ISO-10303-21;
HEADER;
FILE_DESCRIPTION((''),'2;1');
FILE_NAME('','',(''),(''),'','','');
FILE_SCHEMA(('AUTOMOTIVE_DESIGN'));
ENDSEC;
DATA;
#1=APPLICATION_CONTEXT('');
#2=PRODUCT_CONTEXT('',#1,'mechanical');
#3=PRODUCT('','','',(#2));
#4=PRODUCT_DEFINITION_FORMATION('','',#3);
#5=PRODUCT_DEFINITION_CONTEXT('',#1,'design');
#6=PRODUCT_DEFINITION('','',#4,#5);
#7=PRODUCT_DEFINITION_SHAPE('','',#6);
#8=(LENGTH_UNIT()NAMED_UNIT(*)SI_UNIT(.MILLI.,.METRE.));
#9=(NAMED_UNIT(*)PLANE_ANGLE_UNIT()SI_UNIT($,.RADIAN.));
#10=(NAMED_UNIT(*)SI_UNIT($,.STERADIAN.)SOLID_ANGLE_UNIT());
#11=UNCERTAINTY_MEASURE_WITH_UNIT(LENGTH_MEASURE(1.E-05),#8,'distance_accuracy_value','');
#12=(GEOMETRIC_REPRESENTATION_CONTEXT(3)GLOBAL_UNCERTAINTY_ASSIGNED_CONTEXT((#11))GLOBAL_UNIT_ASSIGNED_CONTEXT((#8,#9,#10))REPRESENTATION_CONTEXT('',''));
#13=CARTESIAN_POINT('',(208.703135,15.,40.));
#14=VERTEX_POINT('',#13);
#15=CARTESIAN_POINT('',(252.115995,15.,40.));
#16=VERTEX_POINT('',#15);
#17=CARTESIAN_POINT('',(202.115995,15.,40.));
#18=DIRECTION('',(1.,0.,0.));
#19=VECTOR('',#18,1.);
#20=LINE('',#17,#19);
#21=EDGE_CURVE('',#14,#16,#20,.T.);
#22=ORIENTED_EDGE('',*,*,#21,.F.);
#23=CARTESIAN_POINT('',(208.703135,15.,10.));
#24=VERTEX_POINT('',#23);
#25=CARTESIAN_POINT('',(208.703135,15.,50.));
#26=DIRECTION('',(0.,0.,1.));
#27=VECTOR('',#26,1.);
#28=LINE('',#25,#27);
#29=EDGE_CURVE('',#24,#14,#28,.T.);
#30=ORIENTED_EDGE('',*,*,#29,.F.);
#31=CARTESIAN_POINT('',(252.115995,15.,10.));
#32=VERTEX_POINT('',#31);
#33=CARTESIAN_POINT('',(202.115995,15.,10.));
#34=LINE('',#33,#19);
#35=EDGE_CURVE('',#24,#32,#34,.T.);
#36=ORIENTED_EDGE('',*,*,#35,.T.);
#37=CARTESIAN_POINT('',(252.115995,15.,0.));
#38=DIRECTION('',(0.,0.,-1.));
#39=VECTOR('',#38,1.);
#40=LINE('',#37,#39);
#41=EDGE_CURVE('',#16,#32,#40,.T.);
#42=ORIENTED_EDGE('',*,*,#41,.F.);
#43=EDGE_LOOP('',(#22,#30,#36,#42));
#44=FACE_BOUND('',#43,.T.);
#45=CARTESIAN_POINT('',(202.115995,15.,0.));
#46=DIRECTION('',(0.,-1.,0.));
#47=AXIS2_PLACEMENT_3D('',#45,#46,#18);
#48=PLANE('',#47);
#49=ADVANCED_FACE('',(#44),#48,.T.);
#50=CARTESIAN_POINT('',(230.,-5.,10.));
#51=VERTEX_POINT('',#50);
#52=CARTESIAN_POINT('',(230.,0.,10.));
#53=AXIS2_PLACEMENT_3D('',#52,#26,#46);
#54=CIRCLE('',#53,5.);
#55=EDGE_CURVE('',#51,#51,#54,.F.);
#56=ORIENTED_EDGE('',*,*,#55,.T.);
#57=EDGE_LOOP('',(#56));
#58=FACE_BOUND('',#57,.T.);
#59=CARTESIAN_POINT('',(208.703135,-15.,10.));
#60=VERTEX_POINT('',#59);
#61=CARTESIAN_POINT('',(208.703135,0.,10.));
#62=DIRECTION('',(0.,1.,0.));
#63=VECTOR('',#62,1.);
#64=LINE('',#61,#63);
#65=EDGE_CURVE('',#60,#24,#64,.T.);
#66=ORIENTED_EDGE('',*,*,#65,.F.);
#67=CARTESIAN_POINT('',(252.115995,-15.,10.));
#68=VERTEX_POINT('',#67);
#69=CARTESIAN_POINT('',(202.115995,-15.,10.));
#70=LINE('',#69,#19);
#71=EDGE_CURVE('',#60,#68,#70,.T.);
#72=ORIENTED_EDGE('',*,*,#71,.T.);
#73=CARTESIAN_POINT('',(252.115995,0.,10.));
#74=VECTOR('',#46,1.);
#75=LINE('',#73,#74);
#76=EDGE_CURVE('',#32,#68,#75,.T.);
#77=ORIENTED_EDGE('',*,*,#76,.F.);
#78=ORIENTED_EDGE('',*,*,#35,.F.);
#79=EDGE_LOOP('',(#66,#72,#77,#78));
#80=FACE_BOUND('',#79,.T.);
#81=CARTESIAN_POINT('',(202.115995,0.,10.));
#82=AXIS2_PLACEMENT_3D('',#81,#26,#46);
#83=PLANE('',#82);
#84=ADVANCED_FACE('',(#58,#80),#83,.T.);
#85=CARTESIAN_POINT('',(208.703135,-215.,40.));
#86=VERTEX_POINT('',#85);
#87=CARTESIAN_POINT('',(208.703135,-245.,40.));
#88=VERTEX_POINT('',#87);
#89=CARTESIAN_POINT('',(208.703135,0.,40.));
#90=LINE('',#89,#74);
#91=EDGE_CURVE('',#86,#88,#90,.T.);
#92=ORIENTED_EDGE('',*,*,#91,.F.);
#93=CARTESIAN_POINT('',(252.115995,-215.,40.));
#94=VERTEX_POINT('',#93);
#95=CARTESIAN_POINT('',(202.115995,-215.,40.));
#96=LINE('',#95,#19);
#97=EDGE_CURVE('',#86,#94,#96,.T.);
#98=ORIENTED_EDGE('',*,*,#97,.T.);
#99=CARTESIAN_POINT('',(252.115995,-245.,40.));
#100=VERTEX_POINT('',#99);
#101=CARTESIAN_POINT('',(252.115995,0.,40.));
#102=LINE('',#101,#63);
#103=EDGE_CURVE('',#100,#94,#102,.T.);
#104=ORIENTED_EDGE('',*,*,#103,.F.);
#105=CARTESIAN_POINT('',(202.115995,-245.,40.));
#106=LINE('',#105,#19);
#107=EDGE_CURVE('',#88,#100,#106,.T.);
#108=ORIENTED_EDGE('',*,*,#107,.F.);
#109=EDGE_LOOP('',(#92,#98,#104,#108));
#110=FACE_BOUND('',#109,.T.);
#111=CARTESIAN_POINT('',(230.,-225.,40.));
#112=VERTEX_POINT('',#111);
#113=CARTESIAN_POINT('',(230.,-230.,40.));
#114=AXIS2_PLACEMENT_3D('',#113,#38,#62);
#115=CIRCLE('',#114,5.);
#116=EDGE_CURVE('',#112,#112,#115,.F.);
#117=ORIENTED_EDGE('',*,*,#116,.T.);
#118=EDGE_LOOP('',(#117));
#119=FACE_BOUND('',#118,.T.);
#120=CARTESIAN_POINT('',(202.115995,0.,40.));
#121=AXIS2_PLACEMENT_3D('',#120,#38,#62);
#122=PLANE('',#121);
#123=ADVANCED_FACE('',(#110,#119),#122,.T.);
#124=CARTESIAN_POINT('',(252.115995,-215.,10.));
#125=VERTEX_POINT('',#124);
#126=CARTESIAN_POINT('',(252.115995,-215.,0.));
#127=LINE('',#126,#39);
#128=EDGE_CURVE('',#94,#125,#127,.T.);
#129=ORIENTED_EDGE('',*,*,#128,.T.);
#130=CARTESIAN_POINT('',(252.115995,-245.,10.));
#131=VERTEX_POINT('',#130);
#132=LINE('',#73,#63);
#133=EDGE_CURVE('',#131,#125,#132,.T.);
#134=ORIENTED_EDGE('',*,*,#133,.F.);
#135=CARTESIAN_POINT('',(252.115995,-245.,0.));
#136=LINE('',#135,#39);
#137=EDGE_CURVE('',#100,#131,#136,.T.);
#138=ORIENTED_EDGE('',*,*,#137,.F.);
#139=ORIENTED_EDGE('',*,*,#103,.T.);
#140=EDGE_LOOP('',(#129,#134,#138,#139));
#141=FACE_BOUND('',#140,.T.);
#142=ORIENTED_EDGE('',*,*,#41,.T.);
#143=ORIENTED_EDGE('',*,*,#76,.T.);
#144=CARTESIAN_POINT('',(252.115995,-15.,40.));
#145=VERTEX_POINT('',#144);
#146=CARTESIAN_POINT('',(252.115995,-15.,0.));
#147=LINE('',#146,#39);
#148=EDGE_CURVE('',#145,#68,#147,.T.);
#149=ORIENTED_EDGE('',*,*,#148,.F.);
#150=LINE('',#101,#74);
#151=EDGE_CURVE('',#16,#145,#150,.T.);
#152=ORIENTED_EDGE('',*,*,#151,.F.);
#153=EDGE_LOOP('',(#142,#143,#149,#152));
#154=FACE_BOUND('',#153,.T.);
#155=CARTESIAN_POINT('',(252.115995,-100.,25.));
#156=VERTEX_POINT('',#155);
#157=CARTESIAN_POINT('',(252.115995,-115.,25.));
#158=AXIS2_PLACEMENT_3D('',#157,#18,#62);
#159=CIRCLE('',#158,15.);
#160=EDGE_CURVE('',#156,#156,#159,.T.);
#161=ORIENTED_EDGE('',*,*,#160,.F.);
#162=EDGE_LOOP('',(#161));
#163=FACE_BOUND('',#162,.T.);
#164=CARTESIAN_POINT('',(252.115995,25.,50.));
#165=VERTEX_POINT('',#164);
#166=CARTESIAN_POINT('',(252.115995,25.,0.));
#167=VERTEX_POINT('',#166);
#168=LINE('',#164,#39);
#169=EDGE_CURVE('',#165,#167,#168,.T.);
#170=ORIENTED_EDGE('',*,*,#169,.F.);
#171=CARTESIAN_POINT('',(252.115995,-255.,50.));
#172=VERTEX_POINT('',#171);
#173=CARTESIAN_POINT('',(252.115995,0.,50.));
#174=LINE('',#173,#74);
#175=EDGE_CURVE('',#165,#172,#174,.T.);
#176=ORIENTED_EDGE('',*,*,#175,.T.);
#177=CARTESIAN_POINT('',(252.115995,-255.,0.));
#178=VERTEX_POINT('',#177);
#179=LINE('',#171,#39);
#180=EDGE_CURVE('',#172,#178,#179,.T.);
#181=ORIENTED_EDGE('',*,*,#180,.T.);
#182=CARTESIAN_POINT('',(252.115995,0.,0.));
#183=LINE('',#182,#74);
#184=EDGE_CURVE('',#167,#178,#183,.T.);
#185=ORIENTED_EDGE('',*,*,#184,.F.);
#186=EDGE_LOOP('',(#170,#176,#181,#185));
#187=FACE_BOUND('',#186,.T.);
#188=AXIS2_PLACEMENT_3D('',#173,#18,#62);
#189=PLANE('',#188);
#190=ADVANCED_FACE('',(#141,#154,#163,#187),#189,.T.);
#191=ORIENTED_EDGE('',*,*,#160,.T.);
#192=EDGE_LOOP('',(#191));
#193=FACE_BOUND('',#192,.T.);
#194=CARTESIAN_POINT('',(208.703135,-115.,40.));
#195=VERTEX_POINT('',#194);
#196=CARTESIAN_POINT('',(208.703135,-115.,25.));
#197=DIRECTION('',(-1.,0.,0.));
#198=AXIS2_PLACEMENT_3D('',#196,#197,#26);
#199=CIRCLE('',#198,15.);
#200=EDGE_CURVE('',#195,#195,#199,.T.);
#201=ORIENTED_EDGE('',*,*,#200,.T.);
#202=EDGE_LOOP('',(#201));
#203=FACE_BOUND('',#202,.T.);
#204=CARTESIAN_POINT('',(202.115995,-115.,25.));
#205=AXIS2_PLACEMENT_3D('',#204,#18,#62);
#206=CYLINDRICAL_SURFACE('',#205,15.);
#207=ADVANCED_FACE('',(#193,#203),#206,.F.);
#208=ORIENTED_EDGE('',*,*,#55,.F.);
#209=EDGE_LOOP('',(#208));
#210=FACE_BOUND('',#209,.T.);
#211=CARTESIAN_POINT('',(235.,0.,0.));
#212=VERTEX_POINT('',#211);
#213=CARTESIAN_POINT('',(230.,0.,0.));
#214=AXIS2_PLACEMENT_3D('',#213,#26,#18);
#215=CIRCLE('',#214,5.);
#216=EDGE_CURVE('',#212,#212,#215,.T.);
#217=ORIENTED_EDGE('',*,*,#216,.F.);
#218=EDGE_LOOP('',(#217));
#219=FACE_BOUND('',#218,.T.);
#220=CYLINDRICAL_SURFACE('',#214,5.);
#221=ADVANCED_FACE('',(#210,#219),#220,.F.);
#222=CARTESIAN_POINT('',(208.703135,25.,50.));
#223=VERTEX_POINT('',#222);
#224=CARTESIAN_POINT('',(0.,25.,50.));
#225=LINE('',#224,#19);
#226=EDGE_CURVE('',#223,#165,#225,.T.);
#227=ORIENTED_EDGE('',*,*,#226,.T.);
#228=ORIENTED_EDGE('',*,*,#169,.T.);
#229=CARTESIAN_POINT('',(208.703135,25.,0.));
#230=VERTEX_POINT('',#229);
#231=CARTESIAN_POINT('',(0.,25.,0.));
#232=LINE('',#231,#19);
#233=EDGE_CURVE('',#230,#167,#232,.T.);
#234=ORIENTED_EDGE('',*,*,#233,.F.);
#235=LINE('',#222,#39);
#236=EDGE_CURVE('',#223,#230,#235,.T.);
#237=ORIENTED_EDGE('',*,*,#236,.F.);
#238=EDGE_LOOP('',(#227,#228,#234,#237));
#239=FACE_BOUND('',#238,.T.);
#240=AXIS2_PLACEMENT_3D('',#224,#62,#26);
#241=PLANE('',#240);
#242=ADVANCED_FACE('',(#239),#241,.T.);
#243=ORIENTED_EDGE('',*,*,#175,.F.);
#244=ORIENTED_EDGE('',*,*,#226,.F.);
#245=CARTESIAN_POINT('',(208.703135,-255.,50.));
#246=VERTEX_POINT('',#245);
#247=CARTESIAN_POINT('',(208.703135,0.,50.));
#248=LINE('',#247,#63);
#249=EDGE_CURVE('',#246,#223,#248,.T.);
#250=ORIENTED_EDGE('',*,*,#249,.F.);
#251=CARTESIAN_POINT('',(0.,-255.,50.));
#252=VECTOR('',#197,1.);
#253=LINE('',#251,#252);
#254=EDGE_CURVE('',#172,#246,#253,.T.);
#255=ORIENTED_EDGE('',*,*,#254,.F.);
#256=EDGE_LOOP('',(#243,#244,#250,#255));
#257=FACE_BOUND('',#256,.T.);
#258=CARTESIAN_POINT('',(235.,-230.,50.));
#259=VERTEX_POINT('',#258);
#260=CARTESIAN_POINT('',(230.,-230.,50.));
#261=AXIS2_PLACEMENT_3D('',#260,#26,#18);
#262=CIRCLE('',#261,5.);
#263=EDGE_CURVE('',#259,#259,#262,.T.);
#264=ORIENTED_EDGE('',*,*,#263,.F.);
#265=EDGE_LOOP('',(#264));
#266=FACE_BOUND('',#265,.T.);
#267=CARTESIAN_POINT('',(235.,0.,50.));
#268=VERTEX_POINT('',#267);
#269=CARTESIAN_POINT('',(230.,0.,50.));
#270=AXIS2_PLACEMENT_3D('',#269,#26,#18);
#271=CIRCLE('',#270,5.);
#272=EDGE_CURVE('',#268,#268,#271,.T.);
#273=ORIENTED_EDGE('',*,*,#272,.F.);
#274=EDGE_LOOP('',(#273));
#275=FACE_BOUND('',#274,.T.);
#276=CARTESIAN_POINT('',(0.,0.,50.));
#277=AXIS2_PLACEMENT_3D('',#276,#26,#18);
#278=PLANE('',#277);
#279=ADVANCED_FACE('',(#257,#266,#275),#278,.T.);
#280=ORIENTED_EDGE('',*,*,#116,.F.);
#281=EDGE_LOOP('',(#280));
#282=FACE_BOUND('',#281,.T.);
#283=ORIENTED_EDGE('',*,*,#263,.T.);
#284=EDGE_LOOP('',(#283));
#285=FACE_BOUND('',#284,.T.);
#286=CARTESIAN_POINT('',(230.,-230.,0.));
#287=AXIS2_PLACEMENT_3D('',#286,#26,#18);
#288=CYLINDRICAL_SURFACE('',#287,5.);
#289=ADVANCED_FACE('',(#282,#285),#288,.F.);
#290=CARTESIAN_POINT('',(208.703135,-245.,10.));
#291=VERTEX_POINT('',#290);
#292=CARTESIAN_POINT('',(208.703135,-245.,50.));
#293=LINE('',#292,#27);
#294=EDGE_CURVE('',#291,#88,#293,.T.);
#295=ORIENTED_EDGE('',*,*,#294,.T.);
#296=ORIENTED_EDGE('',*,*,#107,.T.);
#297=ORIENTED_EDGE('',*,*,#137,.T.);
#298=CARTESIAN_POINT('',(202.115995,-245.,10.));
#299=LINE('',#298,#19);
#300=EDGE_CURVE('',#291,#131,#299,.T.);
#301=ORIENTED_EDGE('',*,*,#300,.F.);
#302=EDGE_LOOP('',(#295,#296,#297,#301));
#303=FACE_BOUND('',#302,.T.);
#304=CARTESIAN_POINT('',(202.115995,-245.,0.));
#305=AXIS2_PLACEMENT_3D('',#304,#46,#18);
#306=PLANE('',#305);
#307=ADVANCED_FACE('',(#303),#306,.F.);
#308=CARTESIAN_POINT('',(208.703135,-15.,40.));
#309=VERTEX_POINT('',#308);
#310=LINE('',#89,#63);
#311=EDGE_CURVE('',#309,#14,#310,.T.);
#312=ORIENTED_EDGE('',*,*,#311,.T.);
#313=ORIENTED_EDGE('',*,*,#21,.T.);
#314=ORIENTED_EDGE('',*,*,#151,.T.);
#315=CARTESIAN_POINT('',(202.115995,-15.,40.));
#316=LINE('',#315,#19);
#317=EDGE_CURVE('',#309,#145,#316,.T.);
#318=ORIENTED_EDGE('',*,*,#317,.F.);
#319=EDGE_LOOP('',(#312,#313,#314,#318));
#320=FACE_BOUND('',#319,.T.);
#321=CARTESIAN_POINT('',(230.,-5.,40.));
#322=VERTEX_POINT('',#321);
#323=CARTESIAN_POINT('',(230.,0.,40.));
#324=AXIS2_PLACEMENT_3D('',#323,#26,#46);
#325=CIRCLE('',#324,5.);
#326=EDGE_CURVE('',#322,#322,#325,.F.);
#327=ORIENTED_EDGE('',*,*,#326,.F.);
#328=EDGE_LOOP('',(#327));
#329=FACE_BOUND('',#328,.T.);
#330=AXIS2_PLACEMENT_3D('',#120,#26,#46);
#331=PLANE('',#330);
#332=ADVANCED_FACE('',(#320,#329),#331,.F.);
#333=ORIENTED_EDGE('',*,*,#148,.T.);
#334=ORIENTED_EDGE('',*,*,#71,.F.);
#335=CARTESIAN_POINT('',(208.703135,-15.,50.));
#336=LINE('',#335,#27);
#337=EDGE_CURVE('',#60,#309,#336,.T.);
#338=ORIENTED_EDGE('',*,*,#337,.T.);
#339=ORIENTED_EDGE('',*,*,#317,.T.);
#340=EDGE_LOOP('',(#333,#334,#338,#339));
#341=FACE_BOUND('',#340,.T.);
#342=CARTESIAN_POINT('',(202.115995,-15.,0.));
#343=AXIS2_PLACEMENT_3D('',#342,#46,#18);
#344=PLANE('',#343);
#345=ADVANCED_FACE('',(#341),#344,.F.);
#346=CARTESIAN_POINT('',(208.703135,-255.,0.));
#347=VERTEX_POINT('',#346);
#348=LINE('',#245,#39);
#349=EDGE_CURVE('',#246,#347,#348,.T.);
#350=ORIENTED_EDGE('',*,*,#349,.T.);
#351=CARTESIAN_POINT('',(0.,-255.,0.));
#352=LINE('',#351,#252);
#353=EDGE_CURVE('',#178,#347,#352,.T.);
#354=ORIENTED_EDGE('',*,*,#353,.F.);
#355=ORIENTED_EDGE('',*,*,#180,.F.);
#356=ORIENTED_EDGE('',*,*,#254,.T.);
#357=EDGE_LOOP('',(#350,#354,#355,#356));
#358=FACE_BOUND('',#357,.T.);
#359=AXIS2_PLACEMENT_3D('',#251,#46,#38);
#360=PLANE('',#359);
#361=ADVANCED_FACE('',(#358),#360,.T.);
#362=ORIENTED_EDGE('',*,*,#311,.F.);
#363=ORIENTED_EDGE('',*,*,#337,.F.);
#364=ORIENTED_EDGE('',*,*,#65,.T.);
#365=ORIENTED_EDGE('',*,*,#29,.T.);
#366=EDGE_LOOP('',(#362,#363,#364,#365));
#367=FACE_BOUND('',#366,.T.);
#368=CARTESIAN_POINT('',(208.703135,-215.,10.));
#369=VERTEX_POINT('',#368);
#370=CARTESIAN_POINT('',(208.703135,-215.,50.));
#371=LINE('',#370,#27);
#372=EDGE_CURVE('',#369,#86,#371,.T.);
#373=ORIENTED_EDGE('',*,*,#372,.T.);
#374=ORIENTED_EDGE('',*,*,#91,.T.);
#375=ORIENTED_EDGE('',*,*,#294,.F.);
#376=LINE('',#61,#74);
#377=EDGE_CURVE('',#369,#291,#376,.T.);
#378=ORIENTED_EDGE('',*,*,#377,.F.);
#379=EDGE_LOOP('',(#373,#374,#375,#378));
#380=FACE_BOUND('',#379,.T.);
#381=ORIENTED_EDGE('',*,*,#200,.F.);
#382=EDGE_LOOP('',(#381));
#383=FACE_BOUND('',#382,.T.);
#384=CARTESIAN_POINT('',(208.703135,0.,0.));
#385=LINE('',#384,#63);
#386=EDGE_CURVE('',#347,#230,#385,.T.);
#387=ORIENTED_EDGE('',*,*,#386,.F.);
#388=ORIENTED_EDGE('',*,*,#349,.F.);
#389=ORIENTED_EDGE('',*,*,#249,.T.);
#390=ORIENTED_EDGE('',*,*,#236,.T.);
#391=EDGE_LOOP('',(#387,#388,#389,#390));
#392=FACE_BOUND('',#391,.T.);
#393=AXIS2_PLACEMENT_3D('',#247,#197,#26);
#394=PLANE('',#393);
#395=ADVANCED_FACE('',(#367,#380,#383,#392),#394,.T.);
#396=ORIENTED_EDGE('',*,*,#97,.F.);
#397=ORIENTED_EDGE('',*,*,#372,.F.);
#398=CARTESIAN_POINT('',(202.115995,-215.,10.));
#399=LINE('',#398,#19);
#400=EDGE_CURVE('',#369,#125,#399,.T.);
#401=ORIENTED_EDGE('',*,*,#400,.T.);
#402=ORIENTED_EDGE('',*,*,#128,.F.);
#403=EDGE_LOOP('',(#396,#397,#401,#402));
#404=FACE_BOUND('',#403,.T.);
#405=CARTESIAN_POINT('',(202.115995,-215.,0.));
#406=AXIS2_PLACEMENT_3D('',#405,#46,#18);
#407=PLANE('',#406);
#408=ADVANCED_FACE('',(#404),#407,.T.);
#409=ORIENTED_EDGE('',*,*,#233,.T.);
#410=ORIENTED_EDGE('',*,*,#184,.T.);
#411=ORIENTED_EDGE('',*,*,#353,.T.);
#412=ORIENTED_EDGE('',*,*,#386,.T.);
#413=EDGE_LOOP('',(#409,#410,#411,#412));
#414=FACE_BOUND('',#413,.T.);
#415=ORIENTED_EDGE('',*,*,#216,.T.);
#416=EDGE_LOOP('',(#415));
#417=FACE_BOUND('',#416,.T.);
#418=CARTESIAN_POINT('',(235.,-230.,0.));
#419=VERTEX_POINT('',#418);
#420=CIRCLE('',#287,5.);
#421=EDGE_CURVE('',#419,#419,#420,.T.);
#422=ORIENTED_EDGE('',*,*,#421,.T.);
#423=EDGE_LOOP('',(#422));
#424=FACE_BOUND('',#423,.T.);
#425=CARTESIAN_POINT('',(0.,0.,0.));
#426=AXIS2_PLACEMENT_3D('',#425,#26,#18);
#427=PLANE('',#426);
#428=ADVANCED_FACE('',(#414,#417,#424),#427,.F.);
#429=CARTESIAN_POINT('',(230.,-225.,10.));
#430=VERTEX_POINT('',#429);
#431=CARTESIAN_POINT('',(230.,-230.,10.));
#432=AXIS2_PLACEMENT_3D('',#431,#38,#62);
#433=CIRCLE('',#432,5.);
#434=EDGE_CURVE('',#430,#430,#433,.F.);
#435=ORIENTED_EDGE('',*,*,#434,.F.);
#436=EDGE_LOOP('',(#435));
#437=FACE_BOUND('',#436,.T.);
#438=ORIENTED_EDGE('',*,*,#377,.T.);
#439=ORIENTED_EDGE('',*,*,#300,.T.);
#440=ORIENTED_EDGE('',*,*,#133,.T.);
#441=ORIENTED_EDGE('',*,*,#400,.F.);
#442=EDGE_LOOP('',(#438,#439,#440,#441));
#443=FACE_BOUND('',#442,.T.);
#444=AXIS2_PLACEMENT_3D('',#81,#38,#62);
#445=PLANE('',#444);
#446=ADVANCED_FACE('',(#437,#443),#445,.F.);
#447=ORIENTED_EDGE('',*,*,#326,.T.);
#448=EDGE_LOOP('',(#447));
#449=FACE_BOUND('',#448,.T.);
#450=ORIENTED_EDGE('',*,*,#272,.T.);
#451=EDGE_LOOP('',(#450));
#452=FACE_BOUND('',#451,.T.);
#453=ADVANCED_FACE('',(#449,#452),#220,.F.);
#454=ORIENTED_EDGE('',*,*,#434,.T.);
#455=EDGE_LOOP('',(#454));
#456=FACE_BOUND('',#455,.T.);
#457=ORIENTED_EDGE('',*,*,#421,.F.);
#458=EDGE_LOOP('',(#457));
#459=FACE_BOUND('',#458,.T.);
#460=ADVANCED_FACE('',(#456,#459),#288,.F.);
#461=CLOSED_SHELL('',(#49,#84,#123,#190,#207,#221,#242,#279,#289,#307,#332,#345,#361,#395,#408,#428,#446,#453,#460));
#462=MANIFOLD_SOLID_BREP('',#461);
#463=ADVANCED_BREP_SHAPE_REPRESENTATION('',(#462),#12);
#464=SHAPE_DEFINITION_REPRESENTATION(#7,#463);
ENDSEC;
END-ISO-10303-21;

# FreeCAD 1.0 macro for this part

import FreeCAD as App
import Part
import Sketcher
Q = App.Units.Quantity


def add_polygon(sketch, points):
    """Adds a closed chain of lines whose ends are joined by coincident constraints."""
    first, n = sketch.GeometryCount, len(points)
    for a, b in zip(points, points[1:] + points[:1]):
        sketch.addGeometry(Part.LineSegment(App.Vector(*a, 0), App.Vector(*b, 0)), False)
    for i in range(n):
        sketch.addConstraint(Sketcher.Constraint("Coincident", first + i, 2, first + (i + 1) % n, 1))

doc = App.newDocument("Part")
body = doc.addObject("PartDesign::Body", "Body")

sketch1 = body.newObject("Sketcher::SketchObject", "Sketch")
sketch1.AttachmentSupport = (doc.getObject("XY_Plane"), [""])
sketch1.MapMode = "FlatFace"
add_polygon(sketch1, [(209, 25), (209, -255), (252, -255), (252, 25)])
sketch1.addConstraint([
    Sketcher.Constraint("Vertical", 0),
    Sketcher.Constraint("Horizontal", 1),
    Sketcher.Constraint("Vertical", 2),
    Sketcher.Constraint("Horizontal", 3),
    Sketcher.Constraint("DistanceY", 0, 2, 0, 1, Q("280 mm")),
    Sketcher.Constraint("DistanceY", 0, 2, -1, 1, Q("255 mm")),
    Sketcher.Constraint("DistanceX", 1, 1, 1, 2, Q("43.41286 mm")),
    Sketcher.Constraint("DistanceX", -1, 1, 0, 2, Q("208.703135 mm")),
])
pad1 = body.newObject("PartDesign::Pad", "Pad")
pad1.Profile = sketch1
pad1.Length = 50

sketch2 = body.newObject("Sketcher::SketchObject", "Sketch001")
sketch2.AttachmentSupport = (doc.getObject("XY_Plane"), [""])
sketch2.MapMode = "FlatFace"
sketch2.AttachmentOffset = App.Placement(App.Vector(0, 0, 50), App.Rotation())
sketch2.addGeometry([
    Part.Circle(App.Vector(230, 0, 0), App.Vector(0, 0, 1), 5),
    Part.Circle(App.Vector(230, -230, 0), App.Vector(0, 0, 1), 5),
], False)
sketch2.addConstraint([
    Sketcher.Constraint("Equal", 0, 1),
    Sketcher.Constraint("PointOnObject", 0, 3, -1),
    Sketcher.Constraint("Vertical", 0, 3, 1, 3),
    Sketcher.Constraint("Diameter", 0, Q("10 mm")),
    Sketcher.Constraint("DistanceX", -1, 1, 0, 3, Q("230 mm")),
    Sketcher.Constraint("DistanceY", 1, 3, -1, 1, Q("230 mm")),
])
pocket1 = body.newObject("PartDesign::Pocket", "Pocket")
pocket1.Profile = sketch2
pocket1.Length = 50

sketch3 = body.newObject("Sketcher::SketchObject", "Sketch002")
sketch3.AttachmentSupport = (doc.getObject("YZ_Plane"), [""])
sketch3.MapMode = "FlatFace"
sketch3.AttachmentOffset = App.Placement(App.Vector(0, 0, 252.115995), App.Rotation())
add_polygon(sketch3, [(15, 40), (-15, 40), (-15, 10), (15, 10)])
add_polygon(sketch3, [(-215, 40), (-245, 40), (-245, 10), (-215, 10)])
sketch3.addConstraint([
    Sketcher.Constraint("Horizontal", 0),
    Sketcher.Constraint("Vertical", 1),
    Sketcher.Constraint("Horizontal", 2),
    Sketcher.Constraint("Vertical", 3),
    Sketcher.Constraint("Horizontal", 4),
    Sketcher.Constraint("Vertical", 5),
    Sketcher.Constraint("Horizontal", 6),
    Sketcher.Constraint("Vertical", 7),
    Sketcher.Constraint("Horizontal", 3, 2, 4, 2),
    Sketcher.Constraint("Horizontal", 2, 2, 5, 2),
    Sketcher.Constraint("Equal", 2, 4),
    Sketcher.Constraint("Equal", 6, 1),
    Sketcher.Constraint("DistanceX", 0, 2, 0, 1, Q("30 mm")),
    Sketcher.Constraint("DistanceX", 0, 2, -1, 1, Q("15 mm")),
    Sketcher.Constraint("DistanceY", -1, 1, 0, 2, Q("40 mm")),
    Sketcher.Constraint("DistanceX", 4, 2, -1, 1, Q("245 mm")),
])
pocket2 = body.newObject("PartDesign::Pocket", "Pocket001")
pocket2.Profile = sketch3
pocket2.Length = 50

sketch4 = body.newObject("Sketcher::SketchObject", "Sketch003")
sketch4.AttachmentSupport = (doc.getObject("YZ_Plane"), [""])
sketch4.MapMode = "FlatFace"
sketch4.AttachmentOffset = App.Placement(App.Vector(0, 0, 252.115995), App.Rotation())
sketch4.addGeometry(Part.Circle(App.Vector(-115, 25, 0), App.Vector(0, 0, 1), 15), False)
sketch4.addConstraint([
    Sketcher.Constraint("Diameter", 0, Q("30 mm")),
    Sketcher.Constraint("DistanceX", 0, 3, -1, 1, Q("115 mm")),
    Sketcher.Constraint("DistanceY", -1, 1, 0, 3, Q("25 mm")),
])
pocket3 = body.newObject("PartDesign::Pocket", "Pocket002")
pocket3.Profile = sketch4
pocket3.Length = 50

doc.recompute()
